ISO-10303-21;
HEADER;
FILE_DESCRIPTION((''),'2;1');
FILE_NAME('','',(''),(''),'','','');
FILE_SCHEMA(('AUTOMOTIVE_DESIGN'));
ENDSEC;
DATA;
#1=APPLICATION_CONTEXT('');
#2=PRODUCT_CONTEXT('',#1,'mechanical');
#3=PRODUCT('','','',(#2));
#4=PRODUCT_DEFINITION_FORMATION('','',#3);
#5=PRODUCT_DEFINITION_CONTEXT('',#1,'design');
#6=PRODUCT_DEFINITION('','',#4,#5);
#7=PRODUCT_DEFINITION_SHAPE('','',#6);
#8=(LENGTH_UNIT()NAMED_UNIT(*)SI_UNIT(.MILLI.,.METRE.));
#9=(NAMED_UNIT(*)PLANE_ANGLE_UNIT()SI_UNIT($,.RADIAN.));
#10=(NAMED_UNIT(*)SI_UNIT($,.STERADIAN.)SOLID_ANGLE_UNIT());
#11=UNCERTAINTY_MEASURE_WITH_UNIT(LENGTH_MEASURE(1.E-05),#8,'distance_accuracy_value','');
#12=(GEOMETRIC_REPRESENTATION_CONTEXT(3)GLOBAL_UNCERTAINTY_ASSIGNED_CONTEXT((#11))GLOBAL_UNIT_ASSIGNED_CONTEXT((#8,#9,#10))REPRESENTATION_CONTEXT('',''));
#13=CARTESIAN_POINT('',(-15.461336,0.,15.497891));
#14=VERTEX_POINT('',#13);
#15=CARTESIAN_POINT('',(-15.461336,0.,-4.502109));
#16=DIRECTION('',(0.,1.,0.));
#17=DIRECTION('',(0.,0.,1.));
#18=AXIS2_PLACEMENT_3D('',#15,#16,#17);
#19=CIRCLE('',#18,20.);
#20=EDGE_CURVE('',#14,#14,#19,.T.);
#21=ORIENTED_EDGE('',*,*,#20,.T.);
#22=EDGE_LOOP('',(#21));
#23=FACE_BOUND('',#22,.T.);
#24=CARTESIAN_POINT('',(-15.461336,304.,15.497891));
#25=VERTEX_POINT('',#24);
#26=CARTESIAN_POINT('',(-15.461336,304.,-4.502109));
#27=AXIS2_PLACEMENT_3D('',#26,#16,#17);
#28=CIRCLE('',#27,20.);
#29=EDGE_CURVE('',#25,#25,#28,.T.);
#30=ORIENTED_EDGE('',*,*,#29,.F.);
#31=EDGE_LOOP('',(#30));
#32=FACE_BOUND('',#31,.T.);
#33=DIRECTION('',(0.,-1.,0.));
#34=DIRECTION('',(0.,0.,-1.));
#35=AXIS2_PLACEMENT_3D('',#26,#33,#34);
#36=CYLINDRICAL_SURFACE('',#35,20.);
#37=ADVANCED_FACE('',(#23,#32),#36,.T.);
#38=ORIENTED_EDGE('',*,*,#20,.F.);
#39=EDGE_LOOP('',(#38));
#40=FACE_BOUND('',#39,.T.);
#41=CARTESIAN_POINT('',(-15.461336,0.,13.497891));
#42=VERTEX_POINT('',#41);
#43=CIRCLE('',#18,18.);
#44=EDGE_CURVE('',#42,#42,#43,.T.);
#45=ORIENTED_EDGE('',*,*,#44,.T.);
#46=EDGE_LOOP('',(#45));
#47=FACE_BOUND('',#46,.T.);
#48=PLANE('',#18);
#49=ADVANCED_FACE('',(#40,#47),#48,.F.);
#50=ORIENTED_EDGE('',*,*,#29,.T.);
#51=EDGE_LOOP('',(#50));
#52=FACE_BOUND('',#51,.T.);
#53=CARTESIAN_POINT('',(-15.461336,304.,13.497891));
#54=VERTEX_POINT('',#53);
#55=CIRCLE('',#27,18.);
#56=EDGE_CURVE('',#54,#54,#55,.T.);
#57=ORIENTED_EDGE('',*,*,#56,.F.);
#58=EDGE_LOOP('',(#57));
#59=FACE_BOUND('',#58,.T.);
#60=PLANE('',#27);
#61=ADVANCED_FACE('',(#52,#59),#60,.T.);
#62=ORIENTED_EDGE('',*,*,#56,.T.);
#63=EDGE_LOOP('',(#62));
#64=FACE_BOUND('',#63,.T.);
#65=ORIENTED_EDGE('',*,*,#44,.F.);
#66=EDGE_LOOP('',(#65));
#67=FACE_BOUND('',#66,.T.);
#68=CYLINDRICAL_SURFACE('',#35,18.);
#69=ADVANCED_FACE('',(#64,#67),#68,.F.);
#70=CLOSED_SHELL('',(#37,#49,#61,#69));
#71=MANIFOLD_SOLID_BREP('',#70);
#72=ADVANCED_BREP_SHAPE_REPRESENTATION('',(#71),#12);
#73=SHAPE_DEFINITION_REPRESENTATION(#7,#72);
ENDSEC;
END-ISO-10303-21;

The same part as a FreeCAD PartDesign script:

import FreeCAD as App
import Part
import Sketcher
from FreeCAD import Vector
Q = App.Units.Quantity

doc = App.newDocument("Part")
body = doc.addObject("PartDesign::Body", "Body")

sketch1 = body.newObject("Sketcher::SketchObject", "Sketch")
sketch1.AttachmentSupport = (doc.getObject("XZ_Plane"), [""])
sketch1.MapMode = "FlatFace"
sketch1.addGeometry([
    Part.Circle(Vector(-15, -5, 0), Vector(0, 0, 1), 20),
    Part.Circle(Vector(-15, -5, 0), Vector(0, 0, 1), 18),
], False)
sketch1.addConstraint([
    Sketcher.Constraint("Coincident", 1, 3, 0, 3),
    Sketcher.Constraint("Diameter", 0, Q("40 mm")),
    Sketcher.Constraint("Diameter", 1, Q("36 mm")),
    Sketcher.Constraint("DistanceY", 0, 3, -1, 1, Q("4.502109 mm")),
    Sketcher.Constraint("DistanceX", 0, 3, -1, 1, Q("15.461336 mm")),
])
pad1 = body.newObject("PartDesign::Pad", "Pad")
pad1.Profile = sketch1
pad1.Length = 304
pad1.Reversed = True

doc.recompute()
